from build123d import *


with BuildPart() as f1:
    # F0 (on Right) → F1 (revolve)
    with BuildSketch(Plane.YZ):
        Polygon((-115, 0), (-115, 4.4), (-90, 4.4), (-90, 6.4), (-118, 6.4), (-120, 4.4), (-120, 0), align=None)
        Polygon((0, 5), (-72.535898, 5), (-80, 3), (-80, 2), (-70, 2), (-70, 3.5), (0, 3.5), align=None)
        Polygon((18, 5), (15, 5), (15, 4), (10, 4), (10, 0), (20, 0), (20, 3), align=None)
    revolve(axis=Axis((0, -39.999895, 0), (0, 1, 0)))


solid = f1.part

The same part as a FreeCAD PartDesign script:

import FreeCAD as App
import Part
import Sketcher

V = App.Vector
Q = App.Units.Quantity


def add_polygon(sketch, points):
    """Adds a closed chain of lines whose ends are joined by coincident constraints."""
    first, n = sketch.GeometryCount, len(points)
    for a, b in zip(points, points[1:] + points[:1]):
        sketch.addGeometry(Part.LineSegment(App.Vector(*a, 0), App.Vector(*b, 0)), False)
    for i in range(n):
        sketch.addConstraint(Sketcher.Constraint("Coincident", first + i, 2, first + (i + 1) % n, 1))

doc = App.newDocument("Part")
body = doc.addObject("PartDesign::Body", "Body")
body.AllowCompound = True

# Sketch on YZ plane
sketch1 = body.newObject("Sketcher::SketchObject", "Sketch")
sketch1.AttachmentSupport = (doc.getObject("YZ_Plane"), [""])
sketch1.MapMode = "FlatFace"
add_polygon(sketch1, [(-115, 0), (-115, 4.4), (-90, 4.4), (-90, 6.4), (-118, 6.4), (-120, 4.4), (-120, 0)])  # lines 0-6
add_polygon(sketch1, [(0, 5), (-72.5, 5), (-80, 3), (-80, 2), (-70, 2), (-70, 3.5), (0, 3.5)])  # lines 7-13
add_polygon(sketch1, [(18, 5), (15, 5), (15, 4), (10, 4), (10, 0), (20, 0), (20, 3)])  # lines 14-20
sketch1.addConstraint([
    Sketcher.Constraint("Vertical", 0),
    Sketcher.Constraint("Horizontal", 1),
    Sketcher.Constraint("Vertical", 2),
    Sketcher.Constraint("Horizontal", 3),
    Sketcher.Constraint("Vertical", 5),
    Sketcher.Constraint("Horizontal", 6),
    Sketcher.Constraint("Horizontal", 7),
    Sketcher.Constraint("Vertical", 9),
    Sketcher.Constraint("Horizontal", 10),
    Sketcher.Constraint("Vertical", 11),
    Sketcher.Constraint("Horizontal", 12),
    Sketcher.Constraint("Vertical", 13),
    Sketcher.Constraint("Horizontal", 14),
    Sketcher.Constraint("Vertical", 15),
    Sketcher.Constraint("Horizontal", 16),
    Sketcher.Constraint("Vertical", 17),
    Sketcher.Constraint("Horizontal", 18),
    Sketcher.Constraint("Vertical", 19),
    Sketcher.Constraint("PointOnObject", 5, 2, -1),
    Sketcher.Constraint("PointOnObject", 12, 2, -2),
    Sketcher.Constraint("PointOnObject", 17, 2, -1),
    Sketcher.Constraint("Perpendicular", 4, 20),
    Sketcher.Constraint("Horizontal", 1, 2, 4, 2),
    Sketcher.Constraint("Horizontal", 13, 2, 14, 2),
    Sketcher.Constraint("Horizontal", 8, 2, 19, 2),
    Sketcher.Constraint("Equal", 6, 16),
    Sketcher.Constraint("Equal", 10, 18),
    Sketcher.Constraint("Equal", 11, 13),
    Sketcher.Constraint("Equal", 9, 15),
    Sketcher.Constraint("Equal", 14, 19),
    Sketcher.Constraint("Equal", 4, 20),
    Sketcher.Constraint("DistanceX", 1, 1, 1, 2, 25.0),
    Sketcher.Constraint("DistanceX", 3, 2, 3, 1, 28.0),
    Sketcher.Constraint("DistanceX", 6, 1, 6, 2, 5.0),
    Sketcher.Constraint("DistanceX", 10, 1, 10, 2, 10.0),
    Sketcher.Constraint("DistanceX", 12, 1, 12, 2, 70.0),
    Sketcher.Constraint("DistanceX", 14, 2, 14, 1, 3.0),
    Sketcher.Constraint("DistanceY", 9, 2, 9, 1, 1.0),
    Sketcher.Constraint("Angle", 8, Q("-165.000001 deg")),
    Sketcher.Constraint("DistanceY", 0, 1, 0, 2, 4.4),
    Sketcher.Constraint("DistanceX", 0, 2, -1, 1, 115.0),
    Sketcher.Constraint("DistanceX", -1, 1, 14, 2, 15.0),
])
revolution = body.newObject("PartDesign::Revolution", "Revolution")
revolution.Profile = sketch1
revolution.ReferenceAxis = (sketch1, ["H_Axis"])
revolution.Angle = 360

doc.recompute()
